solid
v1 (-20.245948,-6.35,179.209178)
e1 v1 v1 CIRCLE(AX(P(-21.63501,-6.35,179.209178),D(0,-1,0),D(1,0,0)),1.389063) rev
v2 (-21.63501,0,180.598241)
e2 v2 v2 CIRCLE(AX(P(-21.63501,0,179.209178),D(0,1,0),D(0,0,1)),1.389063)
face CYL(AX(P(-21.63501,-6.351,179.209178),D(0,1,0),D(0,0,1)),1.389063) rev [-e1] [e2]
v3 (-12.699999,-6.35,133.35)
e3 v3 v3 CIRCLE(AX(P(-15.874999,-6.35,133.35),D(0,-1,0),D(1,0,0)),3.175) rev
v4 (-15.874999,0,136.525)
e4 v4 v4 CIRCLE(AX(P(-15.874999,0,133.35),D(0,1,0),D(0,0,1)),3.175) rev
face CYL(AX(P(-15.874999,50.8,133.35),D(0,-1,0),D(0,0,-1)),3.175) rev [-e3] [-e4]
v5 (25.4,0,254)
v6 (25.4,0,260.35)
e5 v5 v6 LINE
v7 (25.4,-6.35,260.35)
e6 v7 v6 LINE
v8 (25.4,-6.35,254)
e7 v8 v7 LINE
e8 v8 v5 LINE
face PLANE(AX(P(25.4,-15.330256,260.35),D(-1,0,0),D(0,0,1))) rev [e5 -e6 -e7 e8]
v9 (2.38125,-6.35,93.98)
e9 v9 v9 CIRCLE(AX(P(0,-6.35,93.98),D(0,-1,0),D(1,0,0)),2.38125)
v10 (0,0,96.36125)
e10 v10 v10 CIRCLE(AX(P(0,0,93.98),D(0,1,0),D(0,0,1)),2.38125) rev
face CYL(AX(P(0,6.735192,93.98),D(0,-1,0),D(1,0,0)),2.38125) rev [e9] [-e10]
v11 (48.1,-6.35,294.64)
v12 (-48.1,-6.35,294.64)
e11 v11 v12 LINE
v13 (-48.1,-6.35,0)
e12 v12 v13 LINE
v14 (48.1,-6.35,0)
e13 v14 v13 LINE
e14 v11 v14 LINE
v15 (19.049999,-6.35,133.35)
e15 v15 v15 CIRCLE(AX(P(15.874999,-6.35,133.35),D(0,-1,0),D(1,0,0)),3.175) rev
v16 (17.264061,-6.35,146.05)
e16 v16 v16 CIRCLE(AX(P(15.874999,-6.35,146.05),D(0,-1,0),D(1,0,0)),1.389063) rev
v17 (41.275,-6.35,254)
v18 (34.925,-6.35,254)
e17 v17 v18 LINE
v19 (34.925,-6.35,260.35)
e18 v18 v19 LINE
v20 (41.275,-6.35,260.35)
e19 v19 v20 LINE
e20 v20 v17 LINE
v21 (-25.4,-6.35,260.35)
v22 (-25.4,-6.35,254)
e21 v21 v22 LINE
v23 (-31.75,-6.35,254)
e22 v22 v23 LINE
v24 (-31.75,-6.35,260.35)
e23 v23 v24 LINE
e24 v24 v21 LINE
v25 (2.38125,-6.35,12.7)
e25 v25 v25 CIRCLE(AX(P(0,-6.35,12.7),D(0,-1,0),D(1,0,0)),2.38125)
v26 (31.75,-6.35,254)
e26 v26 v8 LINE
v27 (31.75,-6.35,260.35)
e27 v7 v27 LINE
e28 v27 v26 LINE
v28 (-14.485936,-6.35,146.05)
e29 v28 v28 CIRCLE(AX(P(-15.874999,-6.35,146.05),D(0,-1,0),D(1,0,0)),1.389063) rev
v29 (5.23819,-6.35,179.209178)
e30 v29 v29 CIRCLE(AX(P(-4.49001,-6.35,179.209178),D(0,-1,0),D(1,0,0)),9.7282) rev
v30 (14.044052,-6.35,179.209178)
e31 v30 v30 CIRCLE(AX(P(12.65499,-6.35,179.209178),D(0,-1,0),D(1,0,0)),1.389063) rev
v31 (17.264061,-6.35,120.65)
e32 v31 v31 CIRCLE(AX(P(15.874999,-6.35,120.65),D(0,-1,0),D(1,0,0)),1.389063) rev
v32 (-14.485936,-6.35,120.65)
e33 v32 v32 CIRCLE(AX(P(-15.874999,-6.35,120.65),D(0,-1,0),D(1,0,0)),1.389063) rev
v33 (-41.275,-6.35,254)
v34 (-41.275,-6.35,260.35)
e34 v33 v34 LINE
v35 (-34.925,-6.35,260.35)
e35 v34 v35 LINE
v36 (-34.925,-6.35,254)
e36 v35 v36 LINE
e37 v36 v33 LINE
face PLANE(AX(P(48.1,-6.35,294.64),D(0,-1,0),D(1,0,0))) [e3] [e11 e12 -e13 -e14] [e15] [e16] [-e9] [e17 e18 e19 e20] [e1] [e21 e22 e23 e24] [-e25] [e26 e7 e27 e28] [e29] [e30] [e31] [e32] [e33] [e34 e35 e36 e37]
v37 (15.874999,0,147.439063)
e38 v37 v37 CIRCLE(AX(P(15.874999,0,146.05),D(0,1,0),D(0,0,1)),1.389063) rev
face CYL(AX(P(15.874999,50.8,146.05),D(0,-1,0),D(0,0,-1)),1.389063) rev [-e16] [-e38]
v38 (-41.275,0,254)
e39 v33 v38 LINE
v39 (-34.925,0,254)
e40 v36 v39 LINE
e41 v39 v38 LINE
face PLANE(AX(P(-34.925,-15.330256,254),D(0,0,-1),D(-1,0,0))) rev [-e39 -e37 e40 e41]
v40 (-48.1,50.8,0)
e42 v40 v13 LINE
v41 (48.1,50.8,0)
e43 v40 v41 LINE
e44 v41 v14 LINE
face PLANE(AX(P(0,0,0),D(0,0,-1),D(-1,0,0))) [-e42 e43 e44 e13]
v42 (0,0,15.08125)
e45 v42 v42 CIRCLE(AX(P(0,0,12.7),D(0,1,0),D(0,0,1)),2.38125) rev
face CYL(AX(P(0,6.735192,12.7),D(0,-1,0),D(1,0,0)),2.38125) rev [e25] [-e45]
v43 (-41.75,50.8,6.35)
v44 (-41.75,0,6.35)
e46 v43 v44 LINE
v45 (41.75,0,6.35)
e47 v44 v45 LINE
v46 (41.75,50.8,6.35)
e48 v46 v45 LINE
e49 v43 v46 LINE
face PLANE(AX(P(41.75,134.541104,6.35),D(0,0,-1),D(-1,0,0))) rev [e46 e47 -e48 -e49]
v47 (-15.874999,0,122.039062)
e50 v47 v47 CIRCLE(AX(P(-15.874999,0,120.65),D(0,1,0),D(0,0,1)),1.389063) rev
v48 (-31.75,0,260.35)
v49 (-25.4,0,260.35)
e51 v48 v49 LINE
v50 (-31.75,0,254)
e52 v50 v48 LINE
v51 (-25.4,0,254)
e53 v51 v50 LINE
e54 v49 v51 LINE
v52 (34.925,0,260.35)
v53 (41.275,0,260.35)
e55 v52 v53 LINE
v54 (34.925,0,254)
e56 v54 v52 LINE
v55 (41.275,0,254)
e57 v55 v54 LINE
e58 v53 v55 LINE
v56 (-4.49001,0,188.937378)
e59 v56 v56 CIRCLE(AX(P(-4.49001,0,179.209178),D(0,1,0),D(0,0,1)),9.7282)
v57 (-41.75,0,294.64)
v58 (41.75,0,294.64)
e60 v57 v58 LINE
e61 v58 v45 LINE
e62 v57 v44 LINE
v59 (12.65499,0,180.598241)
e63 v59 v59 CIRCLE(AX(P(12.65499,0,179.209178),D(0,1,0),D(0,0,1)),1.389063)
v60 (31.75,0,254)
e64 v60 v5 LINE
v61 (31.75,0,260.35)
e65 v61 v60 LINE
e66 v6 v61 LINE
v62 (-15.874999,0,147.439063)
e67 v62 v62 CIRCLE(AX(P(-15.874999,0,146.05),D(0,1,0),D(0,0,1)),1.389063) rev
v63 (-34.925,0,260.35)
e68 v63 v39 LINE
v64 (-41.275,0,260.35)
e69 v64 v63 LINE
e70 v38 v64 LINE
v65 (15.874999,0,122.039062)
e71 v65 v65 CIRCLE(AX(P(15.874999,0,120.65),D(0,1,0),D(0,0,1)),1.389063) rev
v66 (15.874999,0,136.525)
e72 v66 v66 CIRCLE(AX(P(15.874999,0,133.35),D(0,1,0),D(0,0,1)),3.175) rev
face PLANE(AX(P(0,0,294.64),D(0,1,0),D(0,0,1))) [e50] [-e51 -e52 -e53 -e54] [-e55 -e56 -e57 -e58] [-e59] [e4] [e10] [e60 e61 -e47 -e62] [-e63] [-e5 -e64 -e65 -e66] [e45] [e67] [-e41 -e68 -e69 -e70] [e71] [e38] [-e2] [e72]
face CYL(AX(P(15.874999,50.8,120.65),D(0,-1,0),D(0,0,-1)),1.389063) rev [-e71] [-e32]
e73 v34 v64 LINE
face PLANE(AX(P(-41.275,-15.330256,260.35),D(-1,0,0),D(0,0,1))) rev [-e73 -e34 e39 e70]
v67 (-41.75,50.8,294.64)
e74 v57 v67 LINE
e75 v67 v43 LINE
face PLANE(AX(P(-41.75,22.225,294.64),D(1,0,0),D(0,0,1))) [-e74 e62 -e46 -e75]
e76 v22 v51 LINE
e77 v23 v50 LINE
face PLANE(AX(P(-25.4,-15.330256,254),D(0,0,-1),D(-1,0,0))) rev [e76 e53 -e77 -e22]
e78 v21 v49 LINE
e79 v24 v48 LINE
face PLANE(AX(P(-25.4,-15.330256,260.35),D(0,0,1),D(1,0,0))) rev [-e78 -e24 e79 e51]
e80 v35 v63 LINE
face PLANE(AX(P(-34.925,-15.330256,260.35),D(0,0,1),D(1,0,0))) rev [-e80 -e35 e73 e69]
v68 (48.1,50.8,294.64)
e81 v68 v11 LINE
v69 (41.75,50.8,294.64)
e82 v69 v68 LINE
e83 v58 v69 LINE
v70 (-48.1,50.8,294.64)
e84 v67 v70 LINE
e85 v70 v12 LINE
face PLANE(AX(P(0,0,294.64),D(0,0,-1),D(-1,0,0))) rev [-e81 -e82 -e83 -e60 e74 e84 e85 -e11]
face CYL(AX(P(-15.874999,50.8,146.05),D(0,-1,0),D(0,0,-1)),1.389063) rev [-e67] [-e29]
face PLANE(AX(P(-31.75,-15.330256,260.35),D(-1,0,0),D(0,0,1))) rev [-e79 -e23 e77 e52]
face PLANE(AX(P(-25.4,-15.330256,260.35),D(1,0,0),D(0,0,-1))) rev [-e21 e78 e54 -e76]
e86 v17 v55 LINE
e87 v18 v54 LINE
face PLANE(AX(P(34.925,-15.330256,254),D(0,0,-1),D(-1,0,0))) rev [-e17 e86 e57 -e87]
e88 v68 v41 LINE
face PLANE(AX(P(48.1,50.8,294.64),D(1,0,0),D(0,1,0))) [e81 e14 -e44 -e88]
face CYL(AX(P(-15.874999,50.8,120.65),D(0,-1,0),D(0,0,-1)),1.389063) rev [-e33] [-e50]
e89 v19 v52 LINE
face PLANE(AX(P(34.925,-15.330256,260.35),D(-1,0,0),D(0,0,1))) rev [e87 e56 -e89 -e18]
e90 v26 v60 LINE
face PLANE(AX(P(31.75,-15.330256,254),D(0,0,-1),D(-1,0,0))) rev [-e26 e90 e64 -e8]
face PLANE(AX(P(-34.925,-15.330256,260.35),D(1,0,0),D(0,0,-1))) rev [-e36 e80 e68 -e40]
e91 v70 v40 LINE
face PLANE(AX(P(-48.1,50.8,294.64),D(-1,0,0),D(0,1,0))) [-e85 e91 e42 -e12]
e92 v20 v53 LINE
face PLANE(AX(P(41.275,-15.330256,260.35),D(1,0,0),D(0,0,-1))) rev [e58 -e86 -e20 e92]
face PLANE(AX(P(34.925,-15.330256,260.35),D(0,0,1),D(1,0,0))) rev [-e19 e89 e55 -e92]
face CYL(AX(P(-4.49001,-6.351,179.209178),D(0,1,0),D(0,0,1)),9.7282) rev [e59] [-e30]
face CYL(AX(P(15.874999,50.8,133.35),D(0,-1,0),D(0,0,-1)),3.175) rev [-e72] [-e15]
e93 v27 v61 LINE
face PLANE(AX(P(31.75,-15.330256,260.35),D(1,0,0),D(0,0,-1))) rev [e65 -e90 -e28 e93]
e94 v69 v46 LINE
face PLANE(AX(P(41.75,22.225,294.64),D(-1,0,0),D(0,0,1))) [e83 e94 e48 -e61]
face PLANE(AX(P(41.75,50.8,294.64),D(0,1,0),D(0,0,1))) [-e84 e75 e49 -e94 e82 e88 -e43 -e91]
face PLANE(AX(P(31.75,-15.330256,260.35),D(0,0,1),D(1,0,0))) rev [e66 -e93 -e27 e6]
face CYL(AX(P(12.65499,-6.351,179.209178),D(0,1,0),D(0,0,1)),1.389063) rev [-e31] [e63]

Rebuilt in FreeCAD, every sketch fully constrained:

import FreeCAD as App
import Part
import Sketcher
from FreeCAD import Vector
Q = App.Units.Quantity


def add_polygon(sketch, points):
    """Adds a closed chain of lines whose ends are joined by coincident constraints."""
    first, n = sketch.GeometryCount, len(points)
    for a, b in zip(points, points[1:] + points[:1]):
        sketch.addGeometry(Part.LineSegment(App.Vector(*a, 0), App.Vector(*b, 0)), False)
    for i in range(n):
        sketch.addConstraint(Sketcher.Constraint("Coincident", first + i, 2, first + (i + 1) % n, 1))

doc = App.newDocument("Part")
body = doc.addObject("PartDesign::Body", "Body")

# Sketch on XY plane
sketch1 = body.newObject("Sketcher::SketchObject", "Sketch")
sketch1.AttachmentSupport = (doc.getObject("XY_Plane"), [""])
sketch1.MapMode = "FlatFace"
add_polygon(sketch1, [(42, 0), (0, 0), (0, -6), (48, -6), (48, 51), (42, 51)])  # lines 0-5
sketch1.addConstraint(Sketcher.Constraint("Horizontal", 0))
sketch1.addConstraint(Sketcher.Constraint("Vertical", 1))
sketch1.addConstraint(Sketcher.Constraint("Horizontal", 2))
sketch1.addConstraint(Sketcher.Constraint("Vertical", 3))
sketch1.addConstraint(Sketcher.Constraint("Horizontal", 4))
sketch1.addConstraint(Sketcher.Constraint("Vertical", 5))
sketch1.addConstraint(Sketcher.Constraint("Coincident", 0, 2, -1, 1))
sketch1.addConstraint(Sketcher.Constraint("Equal", 4, 1))
sketch1.addConstraint(Sketcher.Constraint("DistanceY", 5, 2, 5, 1, Q("2 in")))
sketch1.addConstraint(Sketcher.Constraint("DistanceX", 4, 2, 4, 1, Q("0.25 in")))
sketch1.addConstraint(Sketcher.Constraint("DistanceX", 0, 2, 0, 1, Q("41.75 mm")))
pad1 = body.newObject("PartDesign::Pad", "Pad")
pad1.Profile = sketch1
pad1.Length = Q("11.6 in")
body2 = doc.addObject("PartDesign::Body", "Body001")
doc.recompute()

body2.BaseFeature = body
doc.recompute()

mirroring = doc.addObject("Part::Mirroring", "Mirroring")
mirroring.Source = body
mirroring.Base = Vector(0, -6.35, 294.64)
mirroring.Normal = Vector(-1, 0, 0)
body3 = doc.addObject("PartDesign::Body", "Body002")
body3.BaseFeature = mirroring
boolean = body2.newObject("PartDesign::Boolean", "Boolean")
boolean.Type = "Fuse"
boolean.addObjects([body3])
doc.recompute()

# Sketch on XZ plane
sketch2 = body2.newObject("Sketcher::SketchObject", "Sketch001")
sketch2.AttachmentSupport = (doc.getObject("XZ_Plane001"), [""])
sketch2.MapMode = "FlatFace"
add_polygon(sketch2, [(-42, 0), (-42, 6), (42, 6), (42, 0)])  # lines 0-3
sketch2.addConstraint(Sketcher.Constraint("Vertical", 0))
sketch2.addConstraint(Sketcher.Constraint("Horizontal", 1))
sketch2.addConstraint(Sketcher.Constraint("Vertical", 2))
sketch2.addConstraint(Sketcher.Constraint("Horizontal", 3))
sketch2.addConstraint(Sketcher.Constraint("Symmetric", 2, 2, 3, 2, -1, 1))
sketch2.addConstraint(Sketcher.Constraint("DistanceY", 0, 1, 0, 2, Q("0.25 in")))
sketch2.addConstraint(Sketcher.Constraint("DistanceX", 1, 1, 1, 2, Q("83.5 mm")))
pad2 = body2.newObject("PartDesign::Pad", "Pad001")
pad2.Profile = sketch2
pad2.Length = Q("2 in")
pad2.Reversed = True

# Sketch on XZ plane
sketch3 = body2.newObject("Sketcher::SketchObject", "Sketch002")
sketch3.AttachmentSupport = (doc.getObject("XZ_Plane001"), [""])
sketch3.MapMode = "FlatFace"
sketch3.AttachmentOffset = App.Placement(Vector(0, 0, 0.25 * 25.4), App.Rotation())
sketch3.addGeometry(Part.Circle(Vector(0, 12.7, 0), Vector(0, 0, 1), 2.4), False)
sketch3.addGeometry(Part.Circle(Vector(0, 94, 0), Vector(0, 0, 1), 2.4), False)
sketch3.addConstraint(Sketcher.Constraint("Equal", 0, 1))
sketch3.addConstraint(Sketcher.Constraint("PointOnObject", 0, 3, -2))
sketch3.addConstraint(Sketcher.Constraint("PointOnObject", 1, 3, -2))
sketch3.addConstraint(Sketcher.Constraint("Diameter", 0, Q("0.1875 in")))
sketch3.addConstraint(Sketcher.Constraint("DistanceY", -1, 1, 0, 3, Q("0.5 in")))
sketch3.addConstraint(Sketcher.Constraint("DistanceY", -1, 1, 1, 3, Q("3.7 in")))
pocket1 = body2.newObject("PartDesign::Pocket", "Pocket")
pocket1.Profile = sketch3
pocket1.Length = Q("0.25 in")

# Sketch on XZ plane
sketch4 = body2.newObject("Sketcher::SketchObject", "Sketch003")
sketch4.AttachmentSupport = (doc.getObject("XZ_Plane001"), [""])
sketch4.MapMode = "FlatFace"
sketch4.addGeometry(Part.Circle(Vector(-4, 179, 0), Vector(0, 0, 1), 10), False)
sketch4.addConstraint(Sketcher.Constraint("Diameter", 0, Q("0.766 in")))
sketch4.addConstraint(Sketcher.Constraint("DistanceX", 0, 3, -1, 1, Q("4.49001 mm")))
sketch4.addConstraint(Sketcher.Constraint("DistanceY", -1, 1, 0, 3, Q("179.209178 mm")))
pocket2 = body2.newObject("PartDesign::Pocket", "Pocket001")
pocket2.Profile = sketch4
pocket2.Type = "UpToFirst"
pocket2.Reversed = True

# Sketch on XZ plane
sketch5 = body2.newObject("Sketcher::SketchObject", "Sketch004")
sketch5.AttachmentSupport = (doc.getObject("XZ_Plane001"), [""])
sketch5.MapMode = "FlatFace"
sketch5.addGeometry(Part.Circle(Vector(-21.6, 179.2, 0), Vector(0, 0, 1), 1.4), False)
sketch5.addConstraint(Sketcher.Constraint("Diameter", 0, Q("0.109375 in")))
sketch5.addConstraint(Sketcher.Constraint("DistanceX", 0, 3, -1, 1, Q("21.63501 mm")))
sketch5.addConstraint(Sketcher.Constraint("DistanceY", -1, 1, 0, 3, Q("179.209178 mm")))
pocket3 = body2.newObject("PartDesign::Pocket", "Pocket002")
pocket3.Profile = sketch5
pocket3.Type = "UpToFirst"
pocket3.Reversed = True

# Sketch on XZ plane
sketch6 = body2.newObject("Sketcher::SketchObject", "Sketch005")
sketch6.AttachmentSupport = (doc.getObject("XZ_Plane001"), [""])
sketch6.MapMode = "FlatFace"
sketch6.addGeometry(Part.Circle(Vector(12.7, 179.2, 0), Vector(0, 0, 1), 1.4), False)
sketch6.addConstraint(Sketcher.Constraint("Diameter", 0, Q("0.109375 in")))
sketch6.addConstraint(Sketcher.Constraint("DistanceX", -1, 1, 0, 3, Q("12.65499 mm")))
sketch6.addConstraint(Sketcher.Constraint("DistanceY", -1, 1, 0, 3, Q("179.209178 mm")))
pocket4 = body2.newObject("PartDesign::Pocket", "Pocket003")
pocket4.Profile = sketch6
pocket4.Type = "UpToFirst"
pocket4.Reversed = True

# Sketch on XZ plane
sketch7 = body2.newObject("Sketcher::SketchObject", "Sketch006")
sketch7.AttachmentSupport = (doc.getObject("XZ_Plane001"), [""])
sketch7.MapMode = "FlatFace"
sketch7.addGeometry(Part.Circle(Vector(15.9, 133.3, 0), Vector(0, 0, 1), 3.2), False)
sketch7.addConstraint(Sketcher.Constraint("Diameter", 0, Q("0.25 in")))
sketch7.addConstraint(Sketcher.Constraint("DistanceY", -1, 1, 0, 3, Q("5.25 in")))
sketch7.addConstraint(Sketcher.Constraint("DistanceX", -1, 1, 0, 3, Q("0.6249999 in")))
pocket5 = body2.newObject("PartDesign::Pocket", "Pocket004")
pocket5.Profile = sketch7
pocket5.Type = "UpToFirst"
pocket5.Reversed = True

# Sketch on XZ plane
sketch8 = body2.newObject("Sketcher::SketchObject", "Sketch007")
sketch8.AttachmentSupport = (doc.getObject("XZ_Plane001"), [""])
sketch8.MapMode = "FlatFace"
sketch8.addGeometry(Part.Circle(Vector(-15.9, 133.3, 0), Vector(0, 0, 1), 3.2), False)
sketch8.addConstraint(Sketcher.Constraint("Diameter", 0, Q("0.25 in")))
sketch8.addConstraint(Sketcher.Constraint("DistanceY", -1, 1, 0, 3, Q("5.25 in")))
sketch8.addConstraint(Sketcher.Constraint("DistanceX", 0, 3, -1, 1, Q("0.6249999 in")))
pocket6 = body2.newObject("PartDesign::Pocket", "Pocket005")
pocket6.Profile = sketch8
pocket6.Type = "UpToFirst"
pocket6.Reversed = True

# Sketch on XZ plane
sketch9 = body2.newObject("Sketcher::SketchObject", "Sketch008")
sketch9.AttachmentSupport = (doc.getObject("XZ_Plane001"), [""])
sketch9.MapMode = "FlatFace"
sketch9.addGeometry(Part.Circle(Vector(15.9, 146.1, 0), Vector(0, 0, 1), 1.4), False)
sketch9.addConstraint(Sketcher.Constraint("Diameter", 0, Q("0.109375 in")))
sketch9.addConstraint(Sketcher.Constraint("DistanceY", -1, 1, 0, 3, Q("5.75 in")))
sketch9.addConstraint(Sketcher.Constraint("DistanceX", -1, 1, 0, 3, Q("0.6249999 in")))
pocket7 = body2.newObject("PartDesign::Pocket", "Pocket006")
pocket7.Profile = sketch9
pocket7.Type = "UpToFirst"
pocket7.Reversed = True

# Sketch on XZ plane
sketch10 = body2.newObject("Sketcher::SketchObject", "Sketch009")
sketch10.AttachmentSupport = (doc.getObject("XZ_Plane001"), [""])
sketch10.MapMode = "FlatFace"
sketch10.addGeometry(Part.Circle(Vector(15.9, 120.7, 0), Vector(0, 0, 1), 1.4), False)
sketch10.addConstraint(Sketcher.Constraint("Diameter", 0, Q("0.109375 in")))
sketch10.addConstraint(Sketcher.Constraint("DistanceY", -1, 1, 0, 3, Q("4.75 in")))
sketch10.addConstraint(Sketcher.Constraint("DistanceX", -1, 1, 0, 3, Q("0.6249999 in")))
pocket8 = body2.newObject("PartDesign::Pocket", "Pocket007")
pocket8.Profile = sketch10
pocket8.Type = "UpToFirst"
pocket8.Reversed = True

# Sketch on XZ plane
sketch11 = body2.newObject("Sketcher::SketchObject", "Sketch010")
sketch11.AttachmentSupport = (doc.getObject("XZ_Plane001"), [""])
sketch11.MapMode = "FlatFace"
sketch11.addGeometry(Part.Circle(Vector(-15.9, 146.1, 0), Vector(0, 0, 1), 1.4), False)
sketch11.addConstraint(Sketcher.Constraint("Diameter", 0, Q("0.109375 in")))
sketch11.addConstraint(Sketcher.Constraint("DistanceY", -1, 1, 0, 3, Q("5.75 in")))
sketch11.addConstraint(Sketcher.Constraint("DistanceX", 0, 3, -1, 1, Q("0.6249999 in")))
pocket9 = body2.newObject("PartDesign::Pocket", "Pocket008")
pocket9.Profile = sketch11
pocket9.Type = "UpToFirst"
pocket9.Reversed = True

# Sketch on XZ plane
sketch12 = body2.newObject("Sketcher::SketchObject", "Sketch011")
sketch12.AttachmentSupport = (doc.getObject("XZ_Plane001"), [""])
sketch12.MapMode = "FlatFace"
sketch12.addGeometry(Part.Circle(Vector(-15.9, 120.7, 0), Vector(0, 0, 1), 1.4), False)
sketch12.addConstraint(Sketcher.Constraint("Diameter", 0, Q("0.109375 in")))
sketch12.addConstraint(Sketcher.Constraint("DistanceY", -1, 1, 0, 3, Q("4.75 in")))
sketch12.addConstraint(Sketcher.Constraint("DistanceX", 0, 3, -1, 1, Q("0.6249999 in")))
pocket10 = body2.newObject("PartDesign::Pocket", "Pocket009")
pocket10.Profile = sketch12
pocket10.Type = "UpToFirst"
pocket10.Reversed = True

# Sketch on XZ plane
sketch13 = body2.newObject("Sketcher::SketchObject", "Sketch012")
sketch13.AttachmentSupport = (doc.getObject("XZ_Plane001"), [""])
sketch13.MapMode = "FlatFace"
sketch13.addGeometry(Part.Circle(Vector(15.9, 133.3, 0), Vector(0, 0, 1), 3.2), False)
sketch13.addGeometry(Part.Circle(Vector(-15.9, 133.3, 0), Vector(0, 0, 1), 3.2), False)
sketch13.addGeometry(Part.Circle(Vector(15.9, 146.1, 0), Vector(0, 0, 1), 1.4), False)
sketch13.addGeometry(Part.Circle(Vector(15.9, 120.7, 0), Vector(0, 0, 1), 1.4), False)
sketch13.addGeometry(Part.Circle(Vector(-15.9, 146.1, 0), Vector(0, 0, 1), 1.4), False)
sketch13.addGeometry(Part.Circle(Vector(-15.9, 120.7, 0), Vector(0, 0, 1), 1.4), False)
sketch13.addConstraint(Sketcher.Constraint("Equal", 0, 1))
sketch13.addConstraint(Sketcher.Constraint("Equal", 2, 3))
sketch13.addConstraint(Sketcher.Constraint("Equal", 3, 4))
sketch13.addConstraint(Sketcher.Constraint("Equal", 4, 5))
sketch13.addConstraint(Sketcher.Constraint("Symmetric", 0, 3, 1, 3, -2))
sketch13.addConstraint(Sketcher.Constraint("Symmetric", 2, 3, 4, 3, -2))
sketch13.addConstraint(Sketcher.Constraint("Symmetric", 3, 3, 5, 3, -2))
sketch13.addConstraint(Sketcher.Constraint("Vertical", 0, 3, 2, 3))
sketch13.addConstraint(Sketcher.Constraint("Vertical", 2, 3, 3, 3))
sketch13.addConstraint(Sketcher.Constraint("Diameter", 0, Q("0.25 in")))
sketch13.addConstraint(Sketcher.Constraint("Diameter", 2, Q("0.109375 in")))
sketch13.addConstraint(Sketcher.Constraint("DistanceY", 3, 3, 2, 3, Q("1 in")))
sketch13.addConstraint(Sketcher.Constraint("DistanceY", 0, 3, 2, 3, Q("0.5 in")))
sketch13.addConstraint(Sketcher.Constraint("DistanceY", -1, 1, 0, 3, Q("5.25 in")))
sketch13.addConstraint(Sketcher.Constraint("DistanceX", 1, 3, 0, 3, Q("1.2499999 in")))
pocket11 = body2.newObject("PartDesign::Pocket", "Pocket010")
pocket11.Profile = sketch13
pocket11.Length = 303.831603

# Sketch on XZ plane
sketch14 = body2.newObject("Sketcher::SketchObject", "Sketch013")
sketch14.AttachmentSupport = (doc.getObject("XZ_Plane001"), [""])
sketch14.MapMode = "FlatFace"
add_polygon(sketch14, [(25, 254), (25, 260), (32, 260), (32, 254)])  # lines 0-3
add_polygon(sketch14, [(-32, 254), (-32, 260), (-25, 260), (-25, 254)])  # lines 4-7
add_polygon(sketch14, [(35, 254), (35, 260), (41, 260), (41, 254)])  # lines 8-11
add_polygon(sketch14, [(-41, 254), (-41, 260), (-35, 260), (-35, 254)])  # lines 12-15
sketch14.addConstraint(Sketcher.Constraint("Vertical", 0))
sketch14.addConstraint(Sketcher.Constraint("Horizontal", 1))
sketch14.addConstraint(Sketcher.Constraint("Vertical", 2))
sketch14.addConstraint(Sketcher.Constraint("Horizontal", 3))
sketch14.addConstraint(Sketcher.Constraint("Vertical", 4))
sketch14.addConstraint(Sketcher.Constraint("Horizontal", 5))
sketch14.addConstraint(Sketcher.Constraint("Vertical", 6))
sketch14.addConstraint(Sketcher.Constraint("Horizontal", 7))
sketch14.addConstraint(Sketcher.Constraint("Vertical", 8))
sketch14.addConstraint(Sketcher.Constraint("Horizontal", 9))
sketch14.addConstraint(Sketcher.Constraint("Vertical", 10))
sketch14.addConstraint(Sketcher.Constraint("Horizontal", 11))
sketch14.addConstraint(Sketcher.Constraint("Vertical", 12))
sketch14.addConstraint(Sketcher.Constraint("Horizontal", 13))
sketch14.addConstraint(Sketcher.Constraint("Vertical", 14))
sketch14.addConstraint(Sketcher.Constraint("Horizontal", 15))
sketch14.addConstraint(Sketcher.Constraint("Symmetric", 1, 2, 4, 2, -2))
sketch14.addConstraint(Sketcher.Constraint("Symmetric", 3, 2, 6, 2, -2))
sketch14.addConstraint(Sketcher.Constraint("Symmetric", 9, 2, 12, 2, -2))
sketch14.addConstraint(Sketcher.Constraint("Symmetric", 11, 2, 14, 2, -2))
sketch14.addConstraint(Sketcher.Constraint("Horizontal", 5, 2, 8, 2))
sketch14.addConstraint(Sketcher.Constraint("Horizontal", 7, 2, 10, 2))
sketch14.addConstraint(Sketcher.Constraint("Equal", 7, 9))
sketch14.addConstraint(Sketcher.Constraint("Equal", 15, 0))
sketch14.addConstraint(Sketcher.Constraint("DistanceX", -1, 1, 0, 2, Q("1 in")))
sketch14.addConstraint(Sketcher.Constraint("DistanceY", -1, 1, 2, 2, Q("10 in")))
sketch14.addConstraint(Sketcher.Constraint("DistanceX", 1, 1, 1, 2, Q("0.25 in")))
sketch14.addConstraint(Sketcher.Constraint("DistanceX", -1, 1, 8, 2, Q("1.375 in")))
pocket12 = body2.newObject("PartDesign::Pocket", "Pocket011")
pocket12.Profile = sketch14
pocket12.Length = Q("0.25 in")
pocket12.Reversed = True
mirroring.Visibility = False

doc.recompute()
